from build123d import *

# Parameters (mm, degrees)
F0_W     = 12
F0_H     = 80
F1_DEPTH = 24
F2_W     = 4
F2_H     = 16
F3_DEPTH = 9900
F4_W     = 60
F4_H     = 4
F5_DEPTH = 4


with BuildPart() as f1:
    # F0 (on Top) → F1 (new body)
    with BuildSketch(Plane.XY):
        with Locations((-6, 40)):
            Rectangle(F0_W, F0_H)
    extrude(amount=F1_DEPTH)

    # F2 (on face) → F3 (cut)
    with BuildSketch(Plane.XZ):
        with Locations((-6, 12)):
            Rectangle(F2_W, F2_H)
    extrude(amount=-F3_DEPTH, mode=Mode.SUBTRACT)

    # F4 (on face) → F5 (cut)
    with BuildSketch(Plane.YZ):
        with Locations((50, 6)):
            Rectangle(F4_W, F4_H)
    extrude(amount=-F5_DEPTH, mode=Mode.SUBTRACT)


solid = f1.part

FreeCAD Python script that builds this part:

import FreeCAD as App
import Part
import Sketcher
from FreeCAD import Vector

doc = App.newDocument("Part")
params = doc.addObject("Spreadsheet::Sheet", "Params")
for row, (alias, value) in enumerate([
    ("sketch1_width", "12 mm"),
    ("sketch1_height", "80 mm"),
    ("pad1_length", "24 mm"),
    ("sketch2_width", "4 mm"),
    ("sketch2_height", "16 mm"),
    ("pocket1_length", "9900 mm"),
    ("sketch3_width", "60 mm"),
    ("sketch3_height", "4 mm"),
    ("pocket2_length", "4 mm"),
], start=1):
    params.set(f"A{row}", alias)
    params.set(f"B{row}", "=" + value)
    params.setAlias(f"B{row}", alias)

body = doc.addObject("PartDesign::Body", "Body")

sketch1 = body.newObject("Sketcher::SketchObject", "Sketch")
sketch1.AttachmentSupport = (doc.getObject("XY_Plane"), [""])
sketch1.MapMode = "FlatFace"
sketch1.addGeometry([
    Part.LineSegment(Vector(-12, 80, 0), Vector(-12, 0, 0)),
    Part.LineSegment(Vector(-12, 0, 0), Vector(0, 0, 0)),
    Part.LineSegment(Vector(0, 0, 0), Vector(0, 80, 0)),
    Part.LineSegment(Vector(0, 80, 0), Vector(-12, 80, 0)),
], False)
sketch1.addConstraint([
    Sketcher.Constraint("Coincident", 0, 2, 1, 1),
    Sketcher.Constraint("Coincident", 1, 2, 2, 1),
    Sketcher.Constraint("Coincident", 2, 2, 3, 1),
    Sketcher.Constraint("Coincident", 3, 2, 0, 1),
    Sketcher.Constraint("Vertical", 0),
    Sketcher.Constraint("Horizontal", 1),
    Sketcher.Constraint("Vertical", 2),
    Sketcher.Constraint("Horizontal", 3),
    Sketcher.Constraint("Coincident", 1, 2, -1, 1),
    Sketcher.Constraint("DistanceX", 1, 1, 1, 2, 12.0),
    Sketcher.Constraint("DistanceY", 0, 2, 0, 1, 80.0),
])
sketch1.setExpression("Constraints[9]", "Params.sketch1_width")
sketch1.setExpression("Constraints[10]", "Params.sketch1_height")
pad1 = body.newObject("PartDesign::Pad", "Pad")
pad1.Profile = sketch1
pad1.setExpression("Length", "Params.pad1_length")

sketch2 = body.newObject("Sketcher::SketchObject", "Sketch001")
sketch2.AttachmentSupport = (doc.getObject("XZ_Plane"), [""])
sketch2.MapMode = "FlatFace"
sketch2.addGeometry([
    Part.LineSegment(Vector(-8, 20, 0), Vector(-8, 4, 0)),
    Part.LineSegment(Vector(-8, 4, 0), Vector(-4, 4, 0)),
    Part.LineSegment(Vector(-4, 4, 0), Vector(-4, 20, 0)),
    Part.LineSegment(Vector(-4, 20, 0), Vector(-8, 20, 0)),
], False)
sketch2.addConstraint([
    Sketcher.Constraint("Coincident", 0, 2, 1, 1),
    Sketcher.Constraint("Coincident", 1, 2, 2, 1),
    Sketcher.Constraint("Coincident", 2, 2, 3, 1),
    Sketcher.Constraint("Coincident", 3, 2, 0, 1),
    Sketcher.Constraint("Vertical", 0),
    Sketcher.Constraint("Horizontal", 1),
    Sketcher.Constraint("Vertical", 2),
    Sketcher.Constraint("Horizontal", 3),
    Sketcher.Constraint("DistanceX", 1, 1, 1, 2, 4.0),
    Sketcher.Constraint("DistanceY", 0, 2, 0, 1, 16.0),
    Sketcher.Constraint("DistanceX", 0, 2, -1, 1, 8.0),
    Sketcher.Constraint("DistanceY", -1, 1, 0, 2, 4.0),
])
sketch2.setExpression("Constraints[8]", "Params.sketch2_width")
sketch2.setExpression("Constraints[9]", "Params.sketch2_height")
pocket1 = body.newObject("PartDesign::Pocket", "Pocket")
pocket1.Profile = sketch2
pocket1.setExpression("Length", "Params.pocket1_length")

sketch3 = body.newObject("Sketcher::SketchObject", "Sketch002")
sketch3.AttachmentSupport = (doc.getObject("YZ_Plane"), [""])
sketch3.MapMode = "FlatFace"
sketch3.addGeometry([
    Part.LineSegment(Vector(20, 8, 0), Vector(20, 4, 0)),
    Part.LineSegment(Vector(20, 4, 0), Vector(80, 4, 0)),
    Part.LineSegment(Vector(80, 4, 0), Vector(80, 8, 0)),
    Part.LineSegment(Vector(80, 8, 0), Vector(20, 8, 0)),
], False)
sketch3.addConstraint([
    Sketcher.Constraint("Coincident", 0, 2, 1, 1),
    Sketcher.Constraint("Coincident", 1, 2, 2, 1),
    Sketcher.Constraint("Coincident", 2, 2, 3, 1),
    Sketcher.Constraint("Coincident", 3, 2, 0, 1),
    Sketcher.Constraint("Vertical", 0),
    Sketcher.Constraint("Horizontal", 1),
    Sketcher.Constraint("Vertical", 2),
    Sketcher.Constraint("Horizontal", 3),
    Sketcher.Constraint("DistanceX", 1, 1, 1, 2, 60.0),
    Sketcher.Constraint("DistanceY", 0, 2, 0, 1, 4.0),
    Sketcher.Constraint("DistanceX", -1, 1, 0, 2, 20.0),
    Sketcher.Constraint("DistanceY", -1, 1, 0, 2, 4.0),
])
sketch3.setExpression("Constraints[8]", "Params.sketch3_width")
sketch3.setExpression("Constraints[9]", "Params.sketch3_height")
pocket2 = body.newObject("PartDesign::Pocket", "Pocket001")
pocket2.Profile = sketch3
pocket2.setExpression("Length", "Params.pocket2_length")

doc.recompute()
